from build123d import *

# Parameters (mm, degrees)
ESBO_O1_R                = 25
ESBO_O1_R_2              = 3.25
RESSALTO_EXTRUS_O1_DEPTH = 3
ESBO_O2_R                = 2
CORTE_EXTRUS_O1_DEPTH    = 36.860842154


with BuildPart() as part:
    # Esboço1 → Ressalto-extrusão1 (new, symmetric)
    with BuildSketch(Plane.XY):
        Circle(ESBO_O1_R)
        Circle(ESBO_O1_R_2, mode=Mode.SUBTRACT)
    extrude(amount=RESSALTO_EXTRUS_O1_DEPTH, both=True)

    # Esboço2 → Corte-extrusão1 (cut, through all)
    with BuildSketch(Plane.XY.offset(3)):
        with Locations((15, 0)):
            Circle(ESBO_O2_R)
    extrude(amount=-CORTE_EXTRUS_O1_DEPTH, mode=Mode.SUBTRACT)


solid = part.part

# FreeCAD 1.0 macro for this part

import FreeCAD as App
import Part
import Sketcher

V = App.Vector
Q = App.Units.Quantity

doc = App.newDocument("Part")
body = doc.addObject("PartDesign::Body", "Body")

sketch1 = doc.addObject("Sketcher::SketchObject", "Sketch")
body.addObject(sketch1)
sketch1.AttachmentSupport = (doc.XY_Plane, [""])
sketch1.MapMode = "FlatFace"
sketch1.addGeometry(Part.Circle(V(0, 0, 0), V(0, 0, 1), 25), False)
sketch1.addGeometry(Part.Circle(V(0, 0, 0), V(0, 0, 1), 3.25), False)
sketch1.addConstraint(Sketcher.Constraint("Coincident", 0, 3, -1, 1))
sketch1.addConstraint(Sketcher.Constraint("Coincident", 1, 3, -1, 1))
sketch1.addConstraint(Sketcher.Constraint("Diameter", 0, Q("50 mm")))
sketch1.addConstraint(Sketcher.Constraint("Diameter", 1, Q("6.5 mm")))
pad1 = doc.addObject("PartDesign::Pad", "Pad")
body.addObject(pad1)
pad1.Profile = sketch1
pad1.Length = 6
pad1.Midplane = True

sketch2 = doc.addObject("Sketcher::SketchObject", "Sketch001")
body.addObject(sketch2)
sketch2.AttachmentSupport = (doc.XY_Plane, [""])
sketch2.MapMode = "FlatFace"
sketch2.AttachmentOffset = App.Placement(V(0, 0, 3), App.Rotation())
sketch2.addGeometry(Part.Circle(V(15, 0, 0), V(0, 0, 1), 2), False)
sketch2.addConstraint(Sketcher.Constraint("PointOnObject", 0, 3, -1))
sketch2.addConstraint(Sketcher.Constraint("Diameter", 0, Q("4 mm")))
sketch2.addConstraint(Sketcher.Constraint("DistanceX", -1, 1, 0, 3, Q("15 mm")))
pocket1 = doc.addObject("PartDesign::Pocket", "Pocket")
body.addObject(pocket1)
pocket1.Profile = sketch2
pocket1.Type = "ThroughAll"

doc.recompute()
